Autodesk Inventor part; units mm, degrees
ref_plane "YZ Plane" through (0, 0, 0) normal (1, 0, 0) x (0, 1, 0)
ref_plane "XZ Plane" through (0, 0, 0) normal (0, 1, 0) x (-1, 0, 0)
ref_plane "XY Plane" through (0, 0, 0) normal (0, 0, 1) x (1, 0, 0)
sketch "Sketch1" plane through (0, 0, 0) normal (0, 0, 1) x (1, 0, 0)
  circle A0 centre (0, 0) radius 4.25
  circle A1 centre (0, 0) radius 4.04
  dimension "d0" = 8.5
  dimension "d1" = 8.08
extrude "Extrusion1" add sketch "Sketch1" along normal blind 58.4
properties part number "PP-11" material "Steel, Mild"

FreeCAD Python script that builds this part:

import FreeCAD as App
import Part
import Sketcher

V = App.Vector

doc = App.newDocument("Part")
params = doc.addObject("Spreadsheet::Sheet", "Params")
for row, (alias, value) in enumerate([
    ("sketch1_diameter", "8.5 mm"),
    ("sketch1_diameter2", "8.08 mm"),
    ("pad1_length", "58.4 mm"),
], start=1):
    params.set(f"A{row}", alias)
    params.set(f"B{row}", "=" + value)
    params.setAlias(f"B{row}", alias)

body = doc.addObject("PartDesign::Body", "Body")

# Sketch on XY plane
sketch1 = body.newObject("Sketcher::SketchObject", "Sketch")
sketch1.AttachmentSupport = (doc.getObject("XY_Plane"), [""])
sketch1.MapMode = "FlatFace"
sketch1.addGeometry([
    Part.Circle(V(0, 0, 0), V(0, 0, 1), 4.25),
    Part.Circle(V(0, 0, 0), V(0, 0, 1), 4.04),
], False)
sketch1.addConstraint([
    Sketcher.Constraint("Coincident", 0, 3, -1, 1),
    Sketcher.Constraint("Coincident", 1, 3, -1, 1),
    Sketcher.Constraint("Diameter", 0, 8.5),
    Sketcher.Constraint("Diameter", 1, 8.08),
])
sketch1.setExpression("Constraints[2]", "Params.sketch1_diameter")
sketch1.setExpression("Constraints[3]", "Params.sketch1_diameter2")
pad1 = body.newObject("PartDesign::Pad", "Pad")
pad1.Profile = sketch1
pad1.setExpression("Length", "Params.pad1_length")

doc.recompute()
